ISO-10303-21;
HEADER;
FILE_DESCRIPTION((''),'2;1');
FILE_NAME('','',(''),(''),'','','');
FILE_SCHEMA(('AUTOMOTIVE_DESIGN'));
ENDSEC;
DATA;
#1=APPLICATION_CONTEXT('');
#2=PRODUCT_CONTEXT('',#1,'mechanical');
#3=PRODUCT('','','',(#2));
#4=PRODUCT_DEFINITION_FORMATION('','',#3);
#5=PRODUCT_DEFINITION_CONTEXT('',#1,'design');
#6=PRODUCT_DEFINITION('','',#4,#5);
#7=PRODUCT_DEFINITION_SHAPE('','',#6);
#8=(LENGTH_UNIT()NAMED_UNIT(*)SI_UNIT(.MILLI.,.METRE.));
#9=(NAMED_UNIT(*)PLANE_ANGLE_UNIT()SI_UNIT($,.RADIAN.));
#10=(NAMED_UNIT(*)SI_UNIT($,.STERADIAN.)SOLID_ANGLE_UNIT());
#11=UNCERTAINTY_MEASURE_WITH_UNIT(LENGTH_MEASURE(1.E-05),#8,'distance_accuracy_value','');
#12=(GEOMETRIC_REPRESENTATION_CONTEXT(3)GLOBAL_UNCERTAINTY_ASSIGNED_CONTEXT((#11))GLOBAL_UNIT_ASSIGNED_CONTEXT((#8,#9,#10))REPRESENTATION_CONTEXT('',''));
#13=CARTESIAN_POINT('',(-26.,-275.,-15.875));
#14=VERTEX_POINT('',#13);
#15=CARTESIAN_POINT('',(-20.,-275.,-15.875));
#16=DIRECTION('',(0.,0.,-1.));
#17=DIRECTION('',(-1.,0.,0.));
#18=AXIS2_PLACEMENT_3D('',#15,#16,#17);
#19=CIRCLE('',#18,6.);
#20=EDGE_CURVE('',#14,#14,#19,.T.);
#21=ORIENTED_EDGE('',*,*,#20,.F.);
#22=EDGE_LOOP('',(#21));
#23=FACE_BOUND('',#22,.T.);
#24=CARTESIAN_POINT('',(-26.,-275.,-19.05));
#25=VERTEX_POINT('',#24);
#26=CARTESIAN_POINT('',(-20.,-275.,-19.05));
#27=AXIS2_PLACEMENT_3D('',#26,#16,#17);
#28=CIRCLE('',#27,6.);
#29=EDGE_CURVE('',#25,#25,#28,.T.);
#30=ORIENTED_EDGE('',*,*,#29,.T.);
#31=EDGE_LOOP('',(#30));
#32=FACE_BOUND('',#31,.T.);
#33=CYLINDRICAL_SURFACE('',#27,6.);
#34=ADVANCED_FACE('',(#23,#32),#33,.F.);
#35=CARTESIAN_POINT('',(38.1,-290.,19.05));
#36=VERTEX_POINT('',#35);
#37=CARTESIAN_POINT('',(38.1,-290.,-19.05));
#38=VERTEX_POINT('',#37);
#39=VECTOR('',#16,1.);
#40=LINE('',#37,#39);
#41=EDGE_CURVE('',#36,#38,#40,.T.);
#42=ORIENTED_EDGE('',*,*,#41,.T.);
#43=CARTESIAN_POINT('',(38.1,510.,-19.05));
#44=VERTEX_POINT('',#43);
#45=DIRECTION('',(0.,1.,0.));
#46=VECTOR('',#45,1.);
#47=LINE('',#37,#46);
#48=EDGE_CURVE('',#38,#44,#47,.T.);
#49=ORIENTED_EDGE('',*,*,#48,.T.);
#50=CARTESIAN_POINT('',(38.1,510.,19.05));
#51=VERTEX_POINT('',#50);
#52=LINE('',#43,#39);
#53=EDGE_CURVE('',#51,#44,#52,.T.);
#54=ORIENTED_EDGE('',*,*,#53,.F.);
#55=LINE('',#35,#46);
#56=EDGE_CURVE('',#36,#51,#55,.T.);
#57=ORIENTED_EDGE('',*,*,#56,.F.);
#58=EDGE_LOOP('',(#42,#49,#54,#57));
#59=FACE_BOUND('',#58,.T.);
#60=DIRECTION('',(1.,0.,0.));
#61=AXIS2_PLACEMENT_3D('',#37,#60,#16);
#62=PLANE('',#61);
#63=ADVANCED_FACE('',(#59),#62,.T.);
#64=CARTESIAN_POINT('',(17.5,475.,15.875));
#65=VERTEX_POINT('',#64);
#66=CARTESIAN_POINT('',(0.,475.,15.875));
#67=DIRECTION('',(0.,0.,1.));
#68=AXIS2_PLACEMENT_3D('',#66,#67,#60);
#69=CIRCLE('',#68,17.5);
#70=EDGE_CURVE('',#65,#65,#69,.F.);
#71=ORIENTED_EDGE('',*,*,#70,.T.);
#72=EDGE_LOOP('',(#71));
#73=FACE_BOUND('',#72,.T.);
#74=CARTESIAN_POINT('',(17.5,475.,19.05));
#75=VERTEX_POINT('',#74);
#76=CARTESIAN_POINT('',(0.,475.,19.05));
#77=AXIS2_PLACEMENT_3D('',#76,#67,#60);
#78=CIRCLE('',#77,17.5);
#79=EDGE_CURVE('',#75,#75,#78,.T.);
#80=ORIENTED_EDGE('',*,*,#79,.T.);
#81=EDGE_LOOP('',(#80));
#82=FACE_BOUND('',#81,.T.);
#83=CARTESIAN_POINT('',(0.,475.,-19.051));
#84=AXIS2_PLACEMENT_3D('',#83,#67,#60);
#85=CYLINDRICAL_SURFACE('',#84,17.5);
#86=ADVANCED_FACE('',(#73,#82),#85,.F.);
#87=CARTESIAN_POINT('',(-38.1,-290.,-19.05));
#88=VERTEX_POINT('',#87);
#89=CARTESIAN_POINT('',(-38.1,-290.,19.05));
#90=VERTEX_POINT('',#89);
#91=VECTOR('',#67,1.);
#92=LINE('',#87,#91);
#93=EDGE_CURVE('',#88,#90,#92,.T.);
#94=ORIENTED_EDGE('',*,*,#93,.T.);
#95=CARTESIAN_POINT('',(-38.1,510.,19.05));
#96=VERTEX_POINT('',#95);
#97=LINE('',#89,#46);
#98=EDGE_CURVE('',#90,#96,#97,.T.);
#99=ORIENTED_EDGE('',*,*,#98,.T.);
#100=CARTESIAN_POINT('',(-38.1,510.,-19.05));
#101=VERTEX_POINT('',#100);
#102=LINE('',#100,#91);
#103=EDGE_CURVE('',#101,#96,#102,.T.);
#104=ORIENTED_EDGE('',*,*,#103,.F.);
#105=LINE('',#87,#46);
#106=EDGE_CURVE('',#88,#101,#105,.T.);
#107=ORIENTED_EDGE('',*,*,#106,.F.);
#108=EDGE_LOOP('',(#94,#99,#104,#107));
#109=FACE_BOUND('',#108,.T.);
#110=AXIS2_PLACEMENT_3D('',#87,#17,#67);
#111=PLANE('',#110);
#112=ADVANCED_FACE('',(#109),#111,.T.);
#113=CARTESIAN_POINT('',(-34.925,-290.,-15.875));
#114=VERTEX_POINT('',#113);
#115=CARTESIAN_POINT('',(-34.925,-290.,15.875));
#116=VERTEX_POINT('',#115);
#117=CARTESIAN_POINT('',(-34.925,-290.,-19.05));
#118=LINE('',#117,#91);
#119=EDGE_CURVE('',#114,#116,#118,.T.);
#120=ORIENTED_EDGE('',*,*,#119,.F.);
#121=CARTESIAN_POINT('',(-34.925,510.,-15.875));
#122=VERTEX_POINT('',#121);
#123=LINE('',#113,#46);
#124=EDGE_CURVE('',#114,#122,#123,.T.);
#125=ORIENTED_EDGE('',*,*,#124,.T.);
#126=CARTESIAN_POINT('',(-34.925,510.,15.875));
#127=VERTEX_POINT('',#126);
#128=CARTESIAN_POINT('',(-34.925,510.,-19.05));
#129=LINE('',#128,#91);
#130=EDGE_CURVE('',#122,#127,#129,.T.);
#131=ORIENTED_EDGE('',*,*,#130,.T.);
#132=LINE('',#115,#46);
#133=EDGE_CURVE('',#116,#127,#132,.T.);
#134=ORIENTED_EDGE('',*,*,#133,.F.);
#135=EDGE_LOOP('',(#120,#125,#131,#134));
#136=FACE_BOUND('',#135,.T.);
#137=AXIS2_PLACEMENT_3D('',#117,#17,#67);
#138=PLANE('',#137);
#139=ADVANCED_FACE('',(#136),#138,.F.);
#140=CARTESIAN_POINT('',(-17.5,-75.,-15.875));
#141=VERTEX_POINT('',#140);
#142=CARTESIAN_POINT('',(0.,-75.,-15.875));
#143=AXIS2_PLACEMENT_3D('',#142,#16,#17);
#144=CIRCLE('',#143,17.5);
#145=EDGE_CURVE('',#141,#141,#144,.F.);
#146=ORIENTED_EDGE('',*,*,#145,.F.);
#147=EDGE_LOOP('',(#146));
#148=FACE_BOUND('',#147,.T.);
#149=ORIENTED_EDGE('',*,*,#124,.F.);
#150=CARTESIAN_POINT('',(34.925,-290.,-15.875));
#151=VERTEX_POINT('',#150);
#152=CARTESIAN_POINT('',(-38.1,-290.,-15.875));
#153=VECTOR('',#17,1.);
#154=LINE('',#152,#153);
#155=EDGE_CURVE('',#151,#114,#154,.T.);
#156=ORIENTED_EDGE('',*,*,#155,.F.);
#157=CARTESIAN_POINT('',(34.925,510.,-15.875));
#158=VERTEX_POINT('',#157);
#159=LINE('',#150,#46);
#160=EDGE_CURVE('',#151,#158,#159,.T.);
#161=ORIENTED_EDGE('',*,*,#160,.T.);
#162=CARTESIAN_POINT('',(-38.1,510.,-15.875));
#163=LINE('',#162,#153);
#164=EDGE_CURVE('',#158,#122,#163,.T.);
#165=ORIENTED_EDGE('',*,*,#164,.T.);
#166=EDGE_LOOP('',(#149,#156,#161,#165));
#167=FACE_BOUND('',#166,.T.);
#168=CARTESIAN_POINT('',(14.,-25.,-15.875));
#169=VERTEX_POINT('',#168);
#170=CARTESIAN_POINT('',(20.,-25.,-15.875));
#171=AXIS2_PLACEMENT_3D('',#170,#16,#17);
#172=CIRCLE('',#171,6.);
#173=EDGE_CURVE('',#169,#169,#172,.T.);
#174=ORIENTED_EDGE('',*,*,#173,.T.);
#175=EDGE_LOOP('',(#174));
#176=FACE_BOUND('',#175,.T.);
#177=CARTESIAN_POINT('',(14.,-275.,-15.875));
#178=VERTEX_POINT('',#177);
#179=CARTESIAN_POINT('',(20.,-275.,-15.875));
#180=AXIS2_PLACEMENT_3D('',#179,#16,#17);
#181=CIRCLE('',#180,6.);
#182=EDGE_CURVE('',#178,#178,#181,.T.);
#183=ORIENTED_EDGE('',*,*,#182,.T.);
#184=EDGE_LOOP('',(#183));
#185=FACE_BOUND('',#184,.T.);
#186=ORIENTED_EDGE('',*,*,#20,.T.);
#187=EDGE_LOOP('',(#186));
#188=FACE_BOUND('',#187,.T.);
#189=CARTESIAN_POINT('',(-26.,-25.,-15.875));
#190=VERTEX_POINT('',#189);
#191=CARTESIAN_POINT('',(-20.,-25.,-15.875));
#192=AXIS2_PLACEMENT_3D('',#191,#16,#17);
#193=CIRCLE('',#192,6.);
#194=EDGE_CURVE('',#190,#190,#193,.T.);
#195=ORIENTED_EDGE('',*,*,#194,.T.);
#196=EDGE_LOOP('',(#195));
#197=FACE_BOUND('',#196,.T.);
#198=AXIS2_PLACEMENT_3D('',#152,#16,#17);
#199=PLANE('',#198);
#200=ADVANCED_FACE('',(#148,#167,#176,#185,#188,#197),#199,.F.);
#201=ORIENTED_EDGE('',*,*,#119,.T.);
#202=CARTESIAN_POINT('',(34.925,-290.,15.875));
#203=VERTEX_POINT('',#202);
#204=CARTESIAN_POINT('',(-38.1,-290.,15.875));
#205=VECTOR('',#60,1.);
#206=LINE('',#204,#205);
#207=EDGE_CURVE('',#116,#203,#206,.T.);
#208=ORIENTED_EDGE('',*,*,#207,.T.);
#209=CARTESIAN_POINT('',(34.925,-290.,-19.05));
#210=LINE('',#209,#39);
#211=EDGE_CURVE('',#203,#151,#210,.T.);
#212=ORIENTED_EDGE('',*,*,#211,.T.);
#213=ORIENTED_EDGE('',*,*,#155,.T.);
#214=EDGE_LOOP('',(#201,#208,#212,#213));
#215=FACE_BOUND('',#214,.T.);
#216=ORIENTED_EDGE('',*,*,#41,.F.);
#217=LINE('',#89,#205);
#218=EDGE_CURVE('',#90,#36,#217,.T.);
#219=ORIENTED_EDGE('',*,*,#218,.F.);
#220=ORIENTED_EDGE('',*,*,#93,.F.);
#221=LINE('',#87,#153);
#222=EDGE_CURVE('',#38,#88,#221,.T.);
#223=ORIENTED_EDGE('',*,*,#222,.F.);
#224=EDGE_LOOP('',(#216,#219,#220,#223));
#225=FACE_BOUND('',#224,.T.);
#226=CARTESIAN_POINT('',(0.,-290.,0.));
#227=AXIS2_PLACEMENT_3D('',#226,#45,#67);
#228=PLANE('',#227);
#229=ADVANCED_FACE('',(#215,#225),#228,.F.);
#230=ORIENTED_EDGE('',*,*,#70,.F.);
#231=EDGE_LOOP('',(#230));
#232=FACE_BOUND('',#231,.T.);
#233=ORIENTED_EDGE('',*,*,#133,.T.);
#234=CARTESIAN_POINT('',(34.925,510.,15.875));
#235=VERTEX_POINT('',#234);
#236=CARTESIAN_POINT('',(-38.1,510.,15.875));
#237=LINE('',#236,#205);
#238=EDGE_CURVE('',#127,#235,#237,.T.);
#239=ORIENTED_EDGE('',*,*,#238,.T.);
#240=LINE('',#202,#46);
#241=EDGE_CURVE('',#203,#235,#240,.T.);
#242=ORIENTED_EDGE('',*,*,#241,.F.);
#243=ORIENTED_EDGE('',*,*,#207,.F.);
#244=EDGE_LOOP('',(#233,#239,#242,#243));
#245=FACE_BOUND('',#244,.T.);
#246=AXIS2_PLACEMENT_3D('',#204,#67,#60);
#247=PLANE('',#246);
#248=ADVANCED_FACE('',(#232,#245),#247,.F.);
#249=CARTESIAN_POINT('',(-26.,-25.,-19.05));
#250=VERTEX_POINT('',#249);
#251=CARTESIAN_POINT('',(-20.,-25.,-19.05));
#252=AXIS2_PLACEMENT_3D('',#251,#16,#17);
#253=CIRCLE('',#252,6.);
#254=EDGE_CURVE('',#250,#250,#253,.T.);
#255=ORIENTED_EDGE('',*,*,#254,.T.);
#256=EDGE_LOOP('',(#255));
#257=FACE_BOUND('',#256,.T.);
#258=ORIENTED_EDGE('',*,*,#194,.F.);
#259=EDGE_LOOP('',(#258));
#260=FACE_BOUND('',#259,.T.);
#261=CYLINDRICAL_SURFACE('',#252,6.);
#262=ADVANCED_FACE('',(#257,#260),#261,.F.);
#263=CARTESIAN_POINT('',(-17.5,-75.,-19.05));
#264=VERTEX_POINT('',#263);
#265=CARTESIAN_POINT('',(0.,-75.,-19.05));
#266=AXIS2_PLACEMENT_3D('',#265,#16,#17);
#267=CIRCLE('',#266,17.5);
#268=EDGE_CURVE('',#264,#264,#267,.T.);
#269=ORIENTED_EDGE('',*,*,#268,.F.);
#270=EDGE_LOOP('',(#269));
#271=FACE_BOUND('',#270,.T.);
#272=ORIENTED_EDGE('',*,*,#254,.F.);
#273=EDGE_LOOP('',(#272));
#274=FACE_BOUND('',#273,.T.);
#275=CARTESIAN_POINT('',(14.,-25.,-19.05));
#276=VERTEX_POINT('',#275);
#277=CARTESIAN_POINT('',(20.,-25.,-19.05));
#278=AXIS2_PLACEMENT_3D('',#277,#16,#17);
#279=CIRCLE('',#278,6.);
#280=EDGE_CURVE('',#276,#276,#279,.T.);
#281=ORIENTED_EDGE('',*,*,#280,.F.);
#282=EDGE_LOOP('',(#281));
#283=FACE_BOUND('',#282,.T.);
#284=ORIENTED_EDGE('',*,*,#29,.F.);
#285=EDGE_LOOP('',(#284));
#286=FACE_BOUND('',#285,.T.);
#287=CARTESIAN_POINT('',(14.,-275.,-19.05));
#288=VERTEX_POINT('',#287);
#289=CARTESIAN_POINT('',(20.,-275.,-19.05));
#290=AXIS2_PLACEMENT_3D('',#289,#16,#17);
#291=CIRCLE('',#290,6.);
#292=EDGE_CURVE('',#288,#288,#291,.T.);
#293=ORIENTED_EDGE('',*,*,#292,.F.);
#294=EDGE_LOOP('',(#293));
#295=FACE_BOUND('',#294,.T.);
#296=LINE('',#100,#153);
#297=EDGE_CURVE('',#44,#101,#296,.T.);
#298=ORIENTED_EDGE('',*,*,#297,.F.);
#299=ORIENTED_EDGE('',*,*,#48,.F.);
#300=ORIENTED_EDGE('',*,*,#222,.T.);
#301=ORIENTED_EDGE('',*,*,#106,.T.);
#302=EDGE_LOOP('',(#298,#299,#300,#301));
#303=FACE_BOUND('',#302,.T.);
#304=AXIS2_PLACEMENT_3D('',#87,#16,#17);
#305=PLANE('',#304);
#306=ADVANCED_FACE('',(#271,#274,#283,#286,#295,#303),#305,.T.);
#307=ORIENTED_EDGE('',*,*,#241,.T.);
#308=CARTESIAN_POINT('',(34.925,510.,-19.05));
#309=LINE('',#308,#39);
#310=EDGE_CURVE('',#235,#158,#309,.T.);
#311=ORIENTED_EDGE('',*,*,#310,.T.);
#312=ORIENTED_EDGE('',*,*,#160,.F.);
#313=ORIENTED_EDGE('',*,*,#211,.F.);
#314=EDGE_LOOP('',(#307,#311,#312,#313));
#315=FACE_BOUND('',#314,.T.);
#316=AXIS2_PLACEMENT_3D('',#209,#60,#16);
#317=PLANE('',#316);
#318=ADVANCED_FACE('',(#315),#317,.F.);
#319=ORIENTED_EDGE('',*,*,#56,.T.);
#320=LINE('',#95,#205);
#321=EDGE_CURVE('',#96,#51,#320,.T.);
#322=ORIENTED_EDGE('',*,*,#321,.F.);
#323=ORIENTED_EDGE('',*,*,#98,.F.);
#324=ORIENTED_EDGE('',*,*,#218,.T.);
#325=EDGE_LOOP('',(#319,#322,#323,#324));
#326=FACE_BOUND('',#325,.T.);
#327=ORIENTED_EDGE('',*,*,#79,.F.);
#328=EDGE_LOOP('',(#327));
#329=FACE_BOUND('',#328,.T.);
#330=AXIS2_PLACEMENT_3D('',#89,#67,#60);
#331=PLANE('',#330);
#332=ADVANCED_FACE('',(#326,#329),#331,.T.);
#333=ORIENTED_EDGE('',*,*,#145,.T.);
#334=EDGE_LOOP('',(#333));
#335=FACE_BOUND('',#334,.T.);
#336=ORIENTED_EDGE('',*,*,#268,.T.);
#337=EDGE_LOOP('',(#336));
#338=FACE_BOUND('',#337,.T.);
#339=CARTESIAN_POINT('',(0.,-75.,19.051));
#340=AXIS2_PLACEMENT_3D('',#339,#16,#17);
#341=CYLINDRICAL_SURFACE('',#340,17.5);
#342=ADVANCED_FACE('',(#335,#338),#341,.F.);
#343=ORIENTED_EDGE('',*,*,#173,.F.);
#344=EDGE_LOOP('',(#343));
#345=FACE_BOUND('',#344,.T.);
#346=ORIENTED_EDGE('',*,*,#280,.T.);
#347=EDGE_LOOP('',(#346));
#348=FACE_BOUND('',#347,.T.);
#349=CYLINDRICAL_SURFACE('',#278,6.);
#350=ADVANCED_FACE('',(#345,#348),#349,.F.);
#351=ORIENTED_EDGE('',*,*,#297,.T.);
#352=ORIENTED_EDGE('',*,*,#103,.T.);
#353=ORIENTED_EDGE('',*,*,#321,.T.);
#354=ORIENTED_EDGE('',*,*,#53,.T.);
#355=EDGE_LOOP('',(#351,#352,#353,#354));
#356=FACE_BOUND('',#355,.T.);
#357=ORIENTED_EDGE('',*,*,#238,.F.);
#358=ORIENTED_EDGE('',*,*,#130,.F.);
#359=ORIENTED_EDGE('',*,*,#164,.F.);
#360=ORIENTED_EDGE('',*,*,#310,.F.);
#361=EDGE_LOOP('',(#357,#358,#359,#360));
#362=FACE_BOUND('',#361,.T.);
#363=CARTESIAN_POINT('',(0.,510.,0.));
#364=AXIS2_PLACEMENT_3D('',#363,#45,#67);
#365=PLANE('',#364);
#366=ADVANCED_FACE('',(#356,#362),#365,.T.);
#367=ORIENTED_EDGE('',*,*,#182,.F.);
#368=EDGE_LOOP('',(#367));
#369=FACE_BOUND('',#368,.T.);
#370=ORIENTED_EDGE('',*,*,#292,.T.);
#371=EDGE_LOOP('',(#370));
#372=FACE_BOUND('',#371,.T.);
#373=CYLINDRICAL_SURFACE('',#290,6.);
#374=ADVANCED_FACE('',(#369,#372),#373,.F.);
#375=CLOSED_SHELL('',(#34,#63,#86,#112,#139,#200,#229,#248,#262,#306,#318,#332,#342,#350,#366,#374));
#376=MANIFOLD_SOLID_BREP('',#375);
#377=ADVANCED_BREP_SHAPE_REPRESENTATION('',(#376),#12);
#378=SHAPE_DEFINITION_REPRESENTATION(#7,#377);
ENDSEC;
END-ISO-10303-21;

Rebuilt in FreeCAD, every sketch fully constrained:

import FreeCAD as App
import Part
import Sketcher
from FreeCAD import Vector
Q = App.Units.Quantity


def add_polygon(sketch, points):
    """Adds a closed chain of lines whose ends are joined by coincident constraints."""
    first, n = sketch.GeometryCount, len(points)
    for a, b in zip(points, points[1:] + points[:1]):
        sketch.addGeometry(Part.LineSegment(App.Vector(*a, 0), App.Vector(*b, 0)), False)
    for i in range(n):
        sketch.addConstraint(Sketcher.Constraint("Coincident", first + i, 2, first + (i + 1) % n, 1))

doc = App.newDocument("Part")
body = doc.addObject("PartDesign::Body", "Body")

# Sketch on XZ plane
sketch1 = body.newObject("Sketcher::SketchObject", "Sketch")
sketch1.AttachmentSupport = (doc.getObject("XZ_Plane"), [""])
sketch1.MapMode = "FlatFace"
add_polygon(sketch1, [(-38, -19), (-38, 19), (38, 19), (38, -19)])  # lines 0-3
add_polygon(sketch1, [(35, 16), (-35, 16), (-35, -16), (35, -16)])  # lines 4-7
sketch1.addConstraint(Sketcher.Constraint("Vertical", 0))
sketch1.addConstraint(Sketcher.Constraint("Horizontal", 1))
sketch1.addConstraint(Sketcher.Constraint("Vertical", 2))
sketch1.addConstraint(Sketcher.Constraint("Horizontal", 3))
sketch1.addConstraint(Sketcher.Constraint("Horizontal", 4))
sketch1.addConstraint(Sketcher.Constraint("Vertical", 5))
sketch1.addConstraint(Sketcher.Constraint("Horizontal", 6))
sketch1.addConstraint(Sketcher.Constraint("Vertical", 7))
sketch1.addConstraint(Sketcher.Constraint("Symmetric", 0, 2, 2, 2, -1, 1))
sketch1.addConstraint(Sketcher.Constraint("Symmetric", 4, 2, 6, 2, -1, 1))
sketch1.addConstraint(Sketcher.Constraint("DistanceX", 1, 1, 1, 2, Q("3 in")))
sketch1.addConstraint(Sketcher.Constraint("DistanceY", 0, 1, 0, 2, Q("1.5 in")))
sketch1.addConstraint(Sketcher.Constraint("DistanceX", 4, 2, 4, 1, Q("2.75 in")))
sketch1.addConstraint(Sketcher.Constraint("DistanceY", 5, 2, 5, 1, Q("1.25 in")))
pad1 = body.newObject("PartDesign::Pad", "Pad")
pad1.Profile = sketch1
pad1.Type = "TwoLengths"
pad1.Length = 510
pad1.Length2 = 290
pad1.Reversed = True

# Sketch on XY plane
sketch2 = body.newObject("Sketcher::SketchObject", "Sketch001")
sketch2.AttachmentSupport = (doc.getObject("XY_Plane"), [""])
sketch2.MapMode = "FlatFace"
sketch2.AttachmentOffset = App.Placement(Vector(0, 0, -0.75 * 25.4), App.Rotation())
sketch2.addGeometry(Part.Circle(Vector(20, -25, 0), Vector(0, 0, 1), 6), False)
sketch2.addGeometry(Part.Circle(Vector(-20, -275, 0), Vector(0, 0, 1), 6), False)
sketch2.addGeometry(Part.Circle(Vector(20, -275, 0), Vector(0, 0, 1), 6), False)
sketch2.addGeometry(Part.Circle(Vector(-20, -25, 0), Vector(0, 0, 1), 6), False)
sketch2.addConstraint(Sketcher.Constraint("Equal", 0, 1))
sketch2.addConstraint(Sketcher.Constraint("Equal", 1, 2))
sketch2.addConstraint(Sketcher.Constraint("Equal", 2, 3))
sketch2.addConstraint(Sketcher.Constraint("Symmetric", 1, 3, 2, 3, -2))
sketch2.addConstraint(Sketcher.Constraint("Symmetric", 0, 3, 3, 3, -2))
sketch2.addConstraint(Sketcher.Constraint("Vertical", 0, 3, 2, 3))
sketch2.addConstraint(Sketcher.Constraint("Diameter", 0, 12.0))
sketch2.addConstraint(Sketcher.Constraint("DistanceX", -1, 1, 0, 3, 20.0))
sketch2.addConstraint(Sketcher.Constraint("DistanceY", 0, 3, -1, 1, 25.0))
sketch2.addConstraint(Sketcher.Constraint("DistanceY", 1, 3, -1, 1, 275.0))
doc.recompute()
hole = body.newObject("PartDesign::Hole", "Hole")
hole.Profile = sketch2
hole.ThreadType = "None"
hole.Diameter = 12
hole.DepthType = "Dimension"
hole.Depth = Q("0.125 in")
hole.DrillPoint = "Flat"
hole.Reversed = True

# Sketch on XY plane
sketch3 = body.newObject("Sketcher::SketchObject", "Sketch002")
sketch3.AttachmentSupport = (doc.getObject("XY_Plane"), [""])
sketch3.MapMode = "FlatFace"
sketch3.AttachmentOffset = App.Placement(Vector(0, 0, 0.75 * 25.4), App.Rotation())
sketch3.addGeometry(Part.Circle(Vector(0, 475, 0), Vector(0, 0, 1), 18), False)
sketch3.addConstraint(Sketcher.Constraint("PointOnObject", 0, 3, -2))
sketch3.addConstraint(Sketcher.Constraint("Diameter", 0, 35.0))
sketch3.addConstraint(Sketcher.Constraint("DistanceY", -1, 1, 0, 3, 475.0))
pocket1 = body.newObject("PartDesign::Pocket", "Pocket")
pocket1.Profile = sketch3
pocket1.Type = "UpToFirst"

# Sketch on XY plane
sketch4 = body.newObject("Sketcher::SketchObject", "Sketch003")
sketch4.AttachmentSupport = (doc.getObject("XY_Plane"), [""])
sketch4.MapMode = "FlatFace"
sketch4.AttachmentOffset = App.Placement(Vector(0, 0, -0.75 * 25.4), App.Rotation())
sketch4.addGeometry(Part.Circle(Vector(0, -75, 0), Vector(0, 0, 1), 18), False)
sketch4.addConstraint(Sketcher.Constraint("PointOnObject", 0, 3, -2))
sketch4.addConstraint(Sketcher.Constraint("Diameter", 0, 35.0))
sketch4.addConstraint(Sketcher.Constraint("DistanceY", 0, 3, -1, 1, 75.0))
pocket2 = body.newObject("PartDesign::Pocket", "Pocket001")
pocket2.Profile = sketch4
pocket2.Type = "UpToFirst"
pocket2.Reversed = True

doc.recompute()
